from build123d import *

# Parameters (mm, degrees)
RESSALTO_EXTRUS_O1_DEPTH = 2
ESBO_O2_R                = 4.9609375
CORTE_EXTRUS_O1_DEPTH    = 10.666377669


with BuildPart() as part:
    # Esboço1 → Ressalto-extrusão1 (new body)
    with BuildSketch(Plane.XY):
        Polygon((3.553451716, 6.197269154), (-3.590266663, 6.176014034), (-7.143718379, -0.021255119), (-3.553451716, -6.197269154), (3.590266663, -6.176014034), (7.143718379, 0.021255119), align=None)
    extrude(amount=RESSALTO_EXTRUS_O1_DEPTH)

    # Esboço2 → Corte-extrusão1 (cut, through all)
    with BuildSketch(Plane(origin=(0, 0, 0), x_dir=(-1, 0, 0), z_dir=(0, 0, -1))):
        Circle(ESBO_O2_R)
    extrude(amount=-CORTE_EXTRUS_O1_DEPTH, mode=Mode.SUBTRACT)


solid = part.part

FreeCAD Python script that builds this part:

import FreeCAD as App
import Part
import Sketcher
Q = App.Units.Quantity

doc = App.newDocument("Part")
params = doc.addObject("Spreadsheet::Sheet", "Params")
for row, (alias, value) in enumerate([
    ("sketch1_length", "0.28125 in"),
    ("pad1_length", "2 mm"),
    ("sketch2_diameter", "0.390625 in"),
], start=1):
    params.set(f"A{row}", alias)
    params.set(f"B{row}", "=" + value)
    params.setAlias(f"B{row}", alias)

body = doc.addObject("PartDesign::Body", "Body")

# Sketch on XY plane
sketch1 = body.newObject("Sketcher::SketchObject", "Sketch")
sketch1.AttachmentSupport = (doc.getObject("XY_Plane"), [""])
sketch1.MapMode = "FlatFace"
sketch1.addGeometry([
    Part.LineSegment(App.Vector(4, 6, 0), App.Vector(-4, 6, 0)),  # 0
    Part.LineSegment(App.Vector(-4, 6, 0), App.Vector(-7, 0, 0)),  # 1
    Part.LineSegment(App.Vector(-7, 0, 0), App.Vector(-4, -6, 0)),  # 2
    Part.LineSegment(App.Vector(-4, -6, 0), App.Vector(4, -6, 0)),  # 3
    Part.LineSegment(App.Vector(4, -6, 0), App.Vector(7, 0, 0)),  # 4
    Part.LineSegment(App.Vector(7, 0, 0), App.Vector(4, 6, 0)),  # 5
], False)
sketch1.addConstraint([
    Sketcher.Constraint("Coincident", 0, 2, 1, 1),
    Sketcher.Constraint("Coincident", 1, 2, 2, 1),
    Sketcher.Constraint("Coincident", 2, 2, 3, 1),
    Sketcher.Constraint("Coincident", 3, 2, 4, 1),
    Sketcher.Constraint("Coincident", 4, 2, 5, 1),
    Sketcher.Constraint("Coincident", 5, 2, 0, 1),
    Sketcher.Constraint("Symmetric", 0, 2, 3, 2, -1, 1),
    Sketcher.Constraint("Symmetric", 1, 2, 4, 2, -1, 1),
    Sketcher.Constraint("Symmetric", 2, 2, 5, 2, -1, 1),
    Sketcher.Constraint("Equal", 0, 1),
    Sketcher.Constraint("Equal", 1, 2),
    Sketcher.Constraint("Distance", 0, Q("0.28125 in")),
    Sketcher.Constraint("DistanceX", 1, 2, -1, 1, 7.143718),
    Sketcher.Constraint("DistanceX", 2, 2, -1, 1, 3.553452),
    Sketcher.Constraint("DistanceY", 2, 2, -1, 1, 6.197269),
])
sketch1.setExpression("Constraints[11]", "Params.sketch1_length")
pad1 = body.newObject("PartDesign::Pad", "Pad")
pad1.Profile = sketch1
pad1.setExpression("Length", "Params.pad1_length")

# Sketch on XY plane
sketch2 = body.newObject("Sketcher::SketchObject", "Sketch001")
sketch2.AttachmentSupport = (doc.getObject("XY_Plane"), [""])
sketch2.MapMode = "FlatFace"
sketch2.addGeometry(Part.Circle(App.Vector(0, 0, 0), App.Vector(0, 0, 1), 5), False)
sketch2.addConstraint([
    Sketcher.Constraint("Coincident", 0, 3, -1, 1),
    Sketcher.Constraint("Diameter", 0, Q("0.390625 in")),
])
sketch2.setExpression("Constraints[1]", "Params.sketch2_diameter")
pocket1 = body.newObject("PartDesign::Pocket", "Pocket")
pocket1.Profile = sketch2
pocket1.Type = "ThroughAll"
pocket1.Reversed = True

doc.recompute()
